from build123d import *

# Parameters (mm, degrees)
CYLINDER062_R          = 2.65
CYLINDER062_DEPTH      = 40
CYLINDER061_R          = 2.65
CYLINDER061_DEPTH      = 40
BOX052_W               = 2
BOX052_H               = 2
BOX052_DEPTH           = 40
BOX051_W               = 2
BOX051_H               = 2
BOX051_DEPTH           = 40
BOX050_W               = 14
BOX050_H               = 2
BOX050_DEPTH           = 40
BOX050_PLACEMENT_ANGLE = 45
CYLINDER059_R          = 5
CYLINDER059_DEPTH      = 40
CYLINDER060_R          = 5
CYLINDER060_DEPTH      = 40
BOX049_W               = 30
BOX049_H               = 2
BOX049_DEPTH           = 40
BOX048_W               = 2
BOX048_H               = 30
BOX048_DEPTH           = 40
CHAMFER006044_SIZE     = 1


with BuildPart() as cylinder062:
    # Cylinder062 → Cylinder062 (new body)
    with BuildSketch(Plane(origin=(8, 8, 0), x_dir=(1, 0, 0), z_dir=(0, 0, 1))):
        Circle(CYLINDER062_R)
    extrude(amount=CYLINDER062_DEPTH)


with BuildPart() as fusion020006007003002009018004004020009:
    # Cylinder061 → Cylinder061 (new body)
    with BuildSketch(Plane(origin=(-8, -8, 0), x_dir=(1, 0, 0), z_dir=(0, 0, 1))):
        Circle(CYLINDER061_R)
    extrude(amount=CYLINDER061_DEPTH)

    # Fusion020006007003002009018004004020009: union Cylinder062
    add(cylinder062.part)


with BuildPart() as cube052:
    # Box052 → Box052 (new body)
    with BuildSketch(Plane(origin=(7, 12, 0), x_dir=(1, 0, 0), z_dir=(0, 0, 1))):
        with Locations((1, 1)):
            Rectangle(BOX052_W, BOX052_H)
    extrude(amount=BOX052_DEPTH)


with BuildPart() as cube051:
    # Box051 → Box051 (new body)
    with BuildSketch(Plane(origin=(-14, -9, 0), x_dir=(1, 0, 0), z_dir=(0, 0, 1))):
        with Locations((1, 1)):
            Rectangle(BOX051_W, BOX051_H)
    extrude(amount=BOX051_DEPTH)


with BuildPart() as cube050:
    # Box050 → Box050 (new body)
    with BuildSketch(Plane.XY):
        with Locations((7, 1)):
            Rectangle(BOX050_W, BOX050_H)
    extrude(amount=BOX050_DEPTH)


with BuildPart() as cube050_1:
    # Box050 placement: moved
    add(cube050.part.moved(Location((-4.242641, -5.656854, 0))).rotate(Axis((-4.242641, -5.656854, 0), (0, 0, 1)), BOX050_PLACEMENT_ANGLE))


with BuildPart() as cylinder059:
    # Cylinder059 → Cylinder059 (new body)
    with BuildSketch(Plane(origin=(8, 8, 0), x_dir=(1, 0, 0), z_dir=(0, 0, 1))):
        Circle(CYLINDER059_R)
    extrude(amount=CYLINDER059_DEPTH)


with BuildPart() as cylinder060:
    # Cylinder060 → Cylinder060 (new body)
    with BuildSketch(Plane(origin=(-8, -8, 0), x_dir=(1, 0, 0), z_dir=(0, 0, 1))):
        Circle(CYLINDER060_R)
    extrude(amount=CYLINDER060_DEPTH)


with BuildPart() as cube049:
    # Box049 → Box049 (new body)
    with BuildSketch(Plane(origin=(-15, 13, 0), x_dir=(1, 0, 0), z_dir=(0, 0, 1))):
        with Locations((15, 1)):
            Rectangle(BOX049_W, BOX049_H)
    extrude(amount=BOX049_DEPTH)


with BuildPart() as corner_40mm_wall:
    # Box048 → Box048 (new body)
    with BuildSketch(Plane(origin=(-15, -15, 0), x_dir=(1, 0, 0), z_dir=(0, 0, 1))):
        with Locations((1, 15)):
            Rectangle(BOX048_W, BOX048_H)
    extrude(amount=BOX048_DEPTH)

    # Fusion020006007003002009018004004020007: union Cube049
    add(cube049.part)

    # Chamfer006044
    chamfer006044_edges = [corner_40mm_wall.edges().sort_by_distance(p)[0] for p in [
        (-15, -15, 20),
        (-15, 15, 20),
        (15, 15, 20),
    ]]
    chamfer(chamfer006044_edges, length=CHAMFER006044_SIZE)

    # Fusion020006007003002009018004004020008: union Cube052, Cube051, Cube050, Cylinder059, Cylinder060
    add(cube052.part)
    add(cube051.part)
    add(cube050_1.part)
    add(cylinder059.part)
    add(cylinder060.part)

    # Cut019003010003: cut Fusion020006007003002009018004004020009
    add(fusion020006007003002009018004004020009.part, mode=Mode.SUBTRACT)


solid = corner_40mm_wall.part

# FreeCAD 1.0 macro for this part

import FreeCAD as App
import Part
import Sketcher

V = App.Vector


def edges_at(feature, points):
    """Names of the edges that pass closest to the given points."""
    edges = feature.Shape.Edges
    near = lambda p: min(range(len(edges)), key=lambda i: edges[i].distToShape(Part.Vertex(*p))[0])
    return sorted({f"Edge{near(p) + 1}" for p in points})


def add_polygon(sketch, points):
    """Adds a closed chain of lines whose ends are joined by coincident constraints."""
    first, n = sketch.GeometryCount, len(points)
    for a, b in zip(points, points[1:] + points[:1]):
        sketch.addGeometry(Part.LineSegment(App.Vector(*a, 0), App.Vector(*b, 0)), False)
    for i in range(n):
        sketch.addConstraint(Sketcher.Constraint("Coincident", first + i, 2, first + (i + 1) % n, 1))

doc = App.newDocument("Part")
params = doc.addObject("Spreadsheet::Sheet", "Params")
for row, (alias, value) in enumerate([
    ("sketch1_diameter", "5.3 mm"),
    ("pad1_length", "40 mm"),
    ("sketch2_diameter", "5.3 mm"),
    ("pad2_length", "40 mm"),
    ("sketch3_width", "2 mm"),
    ("pad3_length", "40 mm"),
    ("sketch4_width", "2 mm"),
    ("pad4_length", "40 mm"),
    ("sketch5_width", "14 mm"),
    ("sketch5_height", "2 mm"),
    ("pad5_length", "40 mm"),
    ("sketch6_diameter", "10 mm"),
    ("pad6_length", "40 mm"),
    ("sketch7_diameter", "10 mm"),
    ("pad7_length", "40 mm"),
    ("sketch8_width", "30 mm"),
    ("sketch8_height", "2 mm"),
    ("pad8_length", "40 mm"),
    ("sketch9_width", "2 mm"),
    ("sketch9_height", "30 mm"),
    ("pad9_length", "40 mm"),
    ("chamfer_size", "1 mm"),
], start=1):
    params.set(f"A{row}", alias)
    params.set(f"B{row}", "=" + value)
    params.setAlias(f"B{row}", alias)

body = doc.addObject("PartDesign::Body", "Body")

# Sketch on XY plane
sketch1 = body.newObject("Sketcher::SketchObject", "Sketch")
sketch1.AttachmentSupport = (doc.getObject("XY_Plane"), [""])
sketch1.MapMode = "FlatFace"
sketch1.addGeometry(Part.Circle(V(8, 8, 0), V(0, 0, 1), 2.65), False)
sketch1.addConstraint(Sketcher.Constraint("Diameter", 0, 5.3))
sketch1.addConstraint(Sketcher.Constraint("DistanceX", -1, 1, 0, 3, 8.0))
sketch1.addConstraint(Sketcher.Constraint("DistanceY", -1, 1, 0, 3, 8.0))
sketch1.setExpression("Constraints[0]", "Params.sketch1_diameter")
pad1 = body.newObject("PartDesign::Pad", "Pad")
pad1.Profile = sketch1
pad1.setExpression("Length", "Params.pad1_length")
body2 = doc.addObject("PartDesign::Body", "Body001")
body2.AllowCompound = True

# Sketch on XY plane
sketch2 = body2.newObject("Sketcher::SketchObject", "Sketch001")
sketch2.AttachmentSupport = (doc.getObject("XY_Plane001"), [""])
sketch2.MapMode = "FlatFace"
sketch2.addGeometry(Part.Circle(V(-8, -8, 0), V(0, 0, 1), 2.65), False)
sketch2.addConstraint(Sketcher.Constraint("Diameter", 0, 5.3))
sketch2.addConstraint(Sketcher.Constraint("DistanceX", 0, 3, -1, 1, 8.0))
sketch2.addConstraint(Sketcher.Constraint("DistanceY", 0, 3, -1, 1, 8.0))
sketch2.setExpression("Constraints[0]", "Params.sketch2_diameter")
pad2 = body2.newObject("PartDesign::Pad", "Pad001")
pad2.Profile = sketch2
pad2.setExpression("Length", "Params.pad2_length")
doc.recompute()

boolean = body2.newObject("PartDesign::Boolean", "Boolean")
boolean.Type = "Fuse"
boolean.addObjects([body])
body3 = doc.addObject("PartDesign::Body", "Body002")

# Sketch on XY plane
sketch3 = body3.newObject("Sketcher::SketchObject", "Sketch002")
sketch3.AttachmentSupport = (doc.getObject("XY_Plane002"), [""])
sketch3.MapMode = "FlatFace"
add_polygon(sketch3, [(7, 14), (7, 12), (9, 12), (9, 14)])  # lines 0-3
sketch3.addConstraint(Sketcher.Constraint("Vertical", 0))
sketch3.addConstraint(Sketcher.Constraint("Horizontal", 1))
sketch3.addConstraint(Sketcher.Constraint("Vertical", 2))
sketch3.addConstraint(Sketcher.Constraint("Horizontal", 3))
sketch3.addConstraint(Sketcher.Constraint("Equal", 3, 0))
sketch3.addConstraint(Sketcher.Constraint("DistanceX", 1, 1, 1, 2, 2.0))
sketch3.addConstraint(Sketcher.Constraint("DistanceX", -1, 1, 0, 2, 7.0))
sketch3.addConstraint(Sketcher.Constraint("DistanceY", -1, 1, 0, 2, 12.0))
sketch3.setExpression("Constraints[9]", "Params.sketch3_width")
pad3 = body3.newObject("PartDesign::Pad", "Pad002")
pad3.Profile = sketch3
pad3.setExpression("Length", "Params.pad3_length")
body4 = doc.addObject("PartDesign::Body", "Body003")

# Sketch on XY plane
sketch4 = body4.newObject("Sketcher::SketchObject", "Sketch003")
sketch4.AttachmentSupport = (doc.getObject("XY_Plane003"), [""])
sketch4.MapMode = "FlatFace"
add_polygon(sketch4, [(-14, -7), (-14, -9), (-12, -9), (-12, -7)])  # lines 0-3
sketch4.addConstraint(Sketcher.Constraint("Vertical", 0))
sketch4.addConstraint(Sketcher.Constraint("Horizontal", 1))
sketch4.addConstraint(Sketcher.Constraint("Vertical", 2))
sketch4.addConstraint(Sketcher.Constraint("Horizontal", 3))
sketch4.addConstraint(Sketcher.Constraint("Equal", 3, 0))
sketch4.addConstraint(Sketcher.Constraint("DistanceX", 1, 1, 1, 2, 2.0))
sketch4.addConstraint(Sketcher.Constraint("DistanceX", 0, 2, -1, 1, 14.0))
sketch4.addConstraint(Sketcher.Constraint("DistanceY", 0, 2, -1, 1, 9.0))
sketch4.setExpression("Constraints[9]", "Params.sketch4_width")
pad4 = body4.newObject("PartDesign::Pad", "Pad003")
pad4.Profile = sketch4
pad4.setExpression("Length", "Params.pad4_length")
body5 = doc.addObject("PartDesign::Body", "Body004")

# Sketch on XY plane
sketch5 = body5.newObject("Sketcher::SketchObject", "Sketch004")
sketch5.AttachmentSupport = (doc.getObject("XY_Plane004"), [""])
sketch5.MapMode = "FlatFace"
add_polygon(sketch5, [(0, 2), (0, 0), (14, 0), (14, 2)])  # lines 0-3
sketch5.addConstraint(Sketcher.Constraint("Vertical", 0))
sketch5.addConstraint(Sketcher.Constraint("Horizontal", 1))
sketch5.addConstraint(Sketcher.Constraint("Vertical", 2))
sketch5.addConstraint(Sketcher.Constraint("Horizontal", 3))
sketch5.addConstraint(Sketcher.Constraint("Coincident", 0, 2, -1, 1))
sketch5.addConstraint(Sketcher.Constraint("DistanceX", 1, 1, 1, 2, 14.0))
sketch5.addConstraint(Sketcher.Constraint("DistanceY", 0, 2, 0, 1, 2.0))
sketch5.setExpression("Constraints[9]", "Params.sketch5_width")
sketch5.setExpression("Constraints[10]", "Params.sketch5_height")
pad5 = body5.newObject("PartDesign::Pad", "Pad004")
pad5.Profile = sketch5
pad5.setExpression("Length", "Params.pad5_length")
body6 = doc.addObject("PartDesign::Body", "Body005")
doc.recompute()

body5.Placement = App.Placement(V(-4.242641, -5.656854, 0), App.Rotation(V(0, 0, 1), 45))
boolean2 = body6.newObject("PartDesign::Boolean", "Boolean001")
boolean2.Type = "Fuse"
boolean2.addObjects([body5])
body7 = doc.addObject("PartDesign::Body", "Body006")

# Sketch on XY plane
sketch6 = body7.newObject("Sketcher::SketchObject", "Sketch005")
sketch6.AttachmentSupport = (doc.getObject("XY_Plane006"), [""])
sketch6.MapMode = "FlatFace"
sketch6.addGeometry(Part.Circle(V(8, 8, 0), V(0, 0, 1), 5), False)
sketch6.addConstraint(Sketcher.Constraint("Diameter", 0, 10.0))
sketch6.addConstraint(Sketcher.Constraint("DistanceX", -1, 1, 0, 3, 8.0))
sketch6.addConstraint(Sketcher.Constraint("DistanceY", -1, 1, 0, 3, 8.0))
sketch6.setExpression("Constraints[0]", "Params.sketch6_diameter")
pad6 = body7.newObject("PartDesign::Pad", "Pad005")
pad6.Profile = sketch6
pad6.setExpression("Length", "Params.pad6_length")
body8 = doc.addObject("PartDesign::Body", "Body007")

# Sketch on XY plane
sketch7 = body8.newObject("Sketcher::SketchObject", "Sketch006")
sketch7.AttachmentSupport = (doc.getObject("XY_Plane007"), [""])
sketch7.MapMode = "FlatFace"
sketch7.addGeometry(Part.Circle(V(-8, -8, 0), V(0, 0, 1), 5), False)
sketch7.addConstraint(Sketcher.Constraint("Diameter", 0, 10.0))
sketch7.addConstraint(Sketcher.Constraint("DistanceX", 0, 3, -1, 1, 8.0))
sketch7.addConstraint(Sketcher.Constraint("DistanceY", 0, 3, -1, 1, 8.0))
sketch7.setExpression("Constraints[0]", "Params.sketch7_diameter")
pad7 = body8.newObject("PartDesign::Pad", "Pad006")
pad7.Profile = sketch7
pad7.setExpression("Length", "Params.pad7_length")
body9 = doc.addObject("PartDesign::Body", "Body008")

# Sketch on XY plane
sketch8 = body9.newObject("Sketcher::SketchObject", "Sketch007")
sketch8.AttachmentSupport = (doc.getObject("XY_Plane008"), [""])
sketch8.MapMode = "FlatFace"
add_polygon(sketch8, [(-15, 15), (-15, 13), (15, 13), (15, 15)])  # lines 0-3
sketch8.addConstraint(Sketcher.Constraint("Vertical", 0))
sketch8.addConstraint(Sketcher.Constraint("Horizontal", 1))
sketch8.addConstraint(Sketcher.Constraint("Vertical", 2))
sketch8.addConstraint(Sketcher.Constraint("Horizontal", 3))
sketch8.addConstraint(Sketcher.Constraint("DistanceX", 1, 1, 1, 2, 30.0))
sketch8.addConstraint(Sketcher.Constraint("DistanceY", 0, 2, 0, 1, 2.0))
sketch8.addConstraint(Sketcher.Constraint("DistanceX", 0, 2, -1, 1, 15.0))
sketch8.addConstraint(Sketcher.Constraint("DistanceY", -1, 1, 0, 2, 13.0))
sketch8.setExpression("Constraints[8]", "Params.sketch8_width")
sketch8.setExpression("Constraints[9]", "Params.sketch8_height")
pad8 = body9.newObject("PartDesign::Pad", "Pad007")
pad8.Profile = sketch8
pad8.setExpression("Length", "Params.pad8_length")
body10 = doc.addObject("PartDesign::Body", "Body009")
body10.AllowCompound = True

# Sketch on XY plane
sketch9 = body10.newObject("Sketcher::SketchObject", "Sketch008")
sketch9.AttachmentSupport = (doc.getObject("XY_Plane009"), [""])
sketch9.MapMode = "FlatFace"
add_polygon(sketch9, [(-15, 15), (-15, -15), (-13, -15), (-13, 15)])  # lines 0-3
sketch9.addConstraint(Sketcher.Constraint("Vertical", 0))
sketch9.addConstraint(Sketcher.Constraint("Horizontal", 1))
sketch9.addConstraint(Sketcher.Constraint("Vertical", 2))
sketch9.addConstraint(Sketcher.Constraint("Horizontal", 3))
sketch9.addConstraint(Sketcher.Constraint("DistanceX", 1, 1, 1, 2, 2.0))
sketch9.addConstraint(Sketcher.Constraint("DistanceY", 0, 2, 0, 1, 30.0))
sketch9.addConstraint(Sketcher.Constraint("DistanceX", 0, 2, -1, 1, 15.0))
sketch9.addConstraint(Sketcher.Constraint("DistanceY", 0, 2, -1, 1, 15.0))
sketch9.setExpression("Constraints[8]", "Params.sketch9_width")
sketch9.setExpression("Constraints[9]", "Params.sketch9_height")
pad9 = body10.newObject("PartDesign::Pad", "Pad008")
pad9.Profile = sketch9
pad9.setExpression("Length", "Params.pad9_length")
doc.recompute()

boolean3 = body10.newObject("PartDesign::Boolean", "Boolean002")
boolean3.Type = "Fuse"
boolean3.addObjects([body9])
doc.recompute()

chamfer = body10.newObject("PartDesign::Chamfer", "Chamfer")
chamfer.Base = (boolean3, edges_at(boolean3, [(-15, -15, 20), (-15, 15, 20), (15, 15, 20)]))
chamfer.setExpression("Size", "Params.chamfer_size")
doc.recompute()

boolean4 = body10.newObject("PartDesign::Boolean", "Boolean003")
boolean4.Type = "Fuse"
boolean4.addObjects([body3])
doc.recompute()

boolean5 = body10.newObject("PartDesign::Boolean", "Boolean004")
boolean5.Type = "Fuse"
boolean5.addObjects([body4])
doc.recompute()

boolean6 = body10.newObject("PartDesign::Boolean", "Boolean005")
boolean6.Type = "Fuse"
boolean6.addObjects([body6])
doc.recompute()

boolean7 = body10.newObject("PartDesign::Boolean", "Boolean006")
boolean7.Type = "Fuse"
boolean7.addObjects([body7])
doc.recompute()

boolean8 = body10.newObject("PartDesign::Boolean", "Boolean007")
boolean8.Type = "Fuse"
boolean8.addObjects([body8])
doc.recompute()

boolean9 = body10.newObject("PartDesign::Boolean", "Boolean008")
boolean9.Type = "Cut"
boolean9.addObjects([body2])

doc.recompute()
